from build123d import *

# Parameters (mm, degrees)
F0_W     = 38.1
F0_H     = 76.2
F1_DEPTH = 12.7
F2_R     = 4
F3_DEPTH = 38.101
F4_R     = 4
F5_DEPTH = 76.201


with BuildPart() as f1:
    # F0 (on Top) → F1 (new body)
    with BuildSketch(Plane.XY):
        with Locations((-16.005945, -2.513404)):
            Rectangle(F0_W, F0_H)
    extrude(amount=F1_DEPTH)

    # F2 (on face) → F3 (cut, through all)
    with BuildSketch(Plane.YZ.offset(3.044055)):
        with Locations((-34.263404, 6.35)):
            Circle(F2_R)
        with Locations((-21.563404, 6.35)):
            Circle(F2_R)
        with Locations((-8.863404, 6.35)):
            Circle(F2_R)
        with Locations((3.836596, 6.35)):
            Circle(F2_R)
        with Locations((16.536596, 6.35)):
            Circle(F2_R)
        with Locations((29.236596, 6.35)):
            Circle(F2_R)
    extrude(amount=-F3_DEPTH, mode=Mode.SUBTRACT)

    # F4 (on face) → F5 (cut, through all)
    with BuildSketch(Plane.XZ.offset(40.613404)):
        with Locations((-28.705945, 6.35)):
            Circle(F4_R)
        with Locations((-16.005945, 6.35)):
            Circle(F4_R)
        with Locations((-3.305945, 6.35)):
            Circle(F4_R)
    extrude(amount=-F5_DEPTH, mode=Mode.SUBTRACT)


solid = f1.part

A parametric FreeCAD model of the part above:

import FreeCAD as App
import Part
import Sketcher

V = App.Vector
Q = App.Units.Quantity

doc = App.newDocument("Part")
body = doc.addObject("PartDesign::Body", "Body")

sketch1 = doc.addObject("Sketcher::SketchObject", "Sketch")
body.addObject(sketch1)
sketch1.AttachmentSupport = (doc.XY_Plane, [""])
sketch1.MapMode = "FlatFace"
sketch1.addGeometry(Part.LineSegment(V(-35.055945, 35.586596, 0), V(-35.055945, -40.613404, 0)), False)
sketch1.addGeometry(Part.LineSegment(V(-35.055945, -40.613404, 0), V(3.044055, -40.613404, 0)), False)
sketch1.addGeometry(Part.LineSegment(V(3.044055, -40.613404, 0), V(3.044055, 35.586596, 0)), False)
sketch1.addGeometry(Part.LineSegment(V(3.044055, 35.586596, 0), V(-35.055945, 35.586596, 0)), False)
sketch1.addConstraint(Sketcher.Constraint("Coincident", 0, 2, 1, 1))
sketch1.addConstraint(Sketcher.Constraint("Coincident", 1, 2, 2, 1))
sketch1.addConstraint(Sketcher.Constraint("Coincident", 2, 2, 3, 1))
sketch1.addConstraint(Sketcher.Constraint("Coincident", 3, 2, 0, 1))
sketch1.addConstraint(Sketcher.Constraint("Vertical", 0))
sketch1.addConstraint(Sketcher.Constraint("Horizontal", 1))
sketch1.addConstraint(Sketcher.Constraint("Vertical", 2))
sketch1.addConstraint(Sketcher.Constraint("Horizontal", 3))
sketch1.addConstraint(Sketcher.Constraint("DistanceY", 0, 2, 0, 1, Q("3 in")))
sketch1.addConstraint(Sketcher.Constraint("DistanceX", 1, 1, 1, 2, Q("1.5 in")))
sketch1.addConstraint(Sketcher.Constraint("DistanceX", 0, 2, -1, 1, 35.055945))
sketch1.addConstraint(Sketcher.Constraint("DistanceY", 0, 2, -1, 1, 40.613404))
pad1 = doc.addObject("PartDesign::Pad", "Pad")
body.addObject(pad1)
pad1.Profile = sketch1
pad1.Length = Q("0.5 in")

sketch2 = doc.addObject("Sketcher::SketchObject", "Sketch001")
body.addObject(sketch2)
sketch2.AttachmentSupport = (doc.YZ_Plane, [""])
sketch2.MapMode = "FlatFace"
sketch2.AttachmentOffset = App.Placement(V(0, 0, 3.044055), App.Rotation())
sketch2.addGeometry(Part.Circle(V(-34.263404, 6.35, 0), V(0, 0, 1), 4), False)
sketch2.addGeometry(Part.Circle(V(-21.563404, 6.35, 0), V(0, 0, 1), 4), False)
sketch2.addGeometry(Part.Circle(V(-8.863404, 6.35, 0), V(0, 0, 1), 4), False)
sketch2.addGeometry(Part.Circle(V(3.836596, 6.35, 0), V(0, 0, 1), 4), False)
sketch2.addGeometry(Part.Circle(V(16.536596, 6.35, 0), V(0, 0, 1), 4), False)
sketch2.addGeometry(Part.Circle(V(29.236596, 6.35, 0), V(0, 0, 1), 4), False)
sketch2.addConstraint(Sketcher.Constraint("Equal", 0, 1))
sketch2.addConstraint(Sketcher.Constraint("Equal", 1, 2))
sketch2.addConstraint(Sketcher.Constraint("Equal", 2, 3))
sketch2.addConstraint(Sketcher.Constraint("Equal", 3, 4))
sketch2.addConstraint(Sketcher.Constraint("Equal", 4, 5))
sketch2.addConstraint(Sketcher.Constraint("Horizontal", 0, 3, 1, 3))
sketch2.addConstraint(Sketcher.Constraint("Horizontal", 1, 3, 2, 3))
sketch2.addConstraint(Sketcher.Constraint("Horizontal", 2, 3, 3, 3))
sketch2.addConstraint(Sketcher.Constraint("Horizontal", 3, 3, 4, 3))
sketch2.addConstraint(Sketcher.Constraint("Horizontal", 4, 3, 5, 3))
sketch2.addConstraint(Sketcher.Constraint("DistanceX", 0, 3, 2, 3, Q("1 in")))
sketch2.addConstraint(Sketcher.Constraint("DistanceX", 1, 3, 3, 3, Q("1 in")))
sketch2.addConstraint(Sketcher.Constraint("DistanceX", 2, 3, 4, 3, Q("1 in")))
sketch2.addConstraint(Sketcher.Constraint("DistanceX", 3, 3, 5, 3, Q("1 in")))
sketch2.addConstraint(Sketcher.Constraint("DistanceX", 0, 3, 1, 3, Q("0.5 in")))
sketch2.addConstraint(Sketcher.Constraint("Diameter", 0, 8.0))
sketch2.addConstraint(Sketcher.Constraint("DistanceY", -1, 1, 0, 3, Q("0.25 in")))
sketch2.addConstraint(Sketcher.Constraint("DistanceX", 0, 3, -1, 1, 34.263404))
pocket1 = doc.addObject("PartDesign::Pocket", "Pocket")
body.addObject(pocket1)
pocket1.Profile = sketch2
pocket1.Type = "ThroughAll"

sketch3 = doc.addObject("Sketcher::SketchObject", "Sketch002")
body.addObject(sketch3)
sketch3.AttachmentSupport = (doc.XZ_Plane, [""])
sketch3.MapMode = "FlatFace"
sketch3.AttachmentOffset = App.Placement(V(0, 0, 40.613404), App.Rotation())
sketch3.addGeometry(Part.Circle(V(-28.705945, 6.35, 0), V(0, 0, 1), 4), False)
sketch3.addGeometry(Part.Circle(V(-16.005945, 6.35, 0), V(0, 0, 1), 4), False)
sketch3.addGeometry(Part.Circle(V(-3.305945, 6.35, 0), V(0, 0, 1), 4), False)
sketch3.addConstraint(Sketcher.Constraint("Equal", 0, 1))
sketch3.addConstraint(Sketcher.Constraint("Equal", 1, 2))
sketch3.addConstraint(Sketcher.Constraint("Horizontal", 0, 3, 1, 3))
sketch3.addConstraint(Sketcher.Constraint("Horizontal", 1, 3, 2, 3))
sketch3.addConstraint(Sketcher.Constraint("DistanceX", 0, 3, 2, 3, Q("1 in")))
sketch3.addConstraint(Sketcher.Constraint("DistanceX", 0, 3, 1, 3, Q("0.5 in")))
sketch3.addConstraint(Sketcher.Constraint("Diameter", 0, 8.0))
sketch3.addConstraint(Sketcher.Constraint("DistanceY", -1, 1, 0, 3, Q("0.25 in")))
sketch3.addConstraint(Sketcher.Constraint("DistanceX", 0, 3, -1, 1, 28.705945))
pocket2 = doc.addObject("PartDesign::Pocket", "Pocket001")
body.addObject(pocket2)
pocket2.Profile = sketch3
pocket2.Type = "ThroughAll"

doc.recompute()
